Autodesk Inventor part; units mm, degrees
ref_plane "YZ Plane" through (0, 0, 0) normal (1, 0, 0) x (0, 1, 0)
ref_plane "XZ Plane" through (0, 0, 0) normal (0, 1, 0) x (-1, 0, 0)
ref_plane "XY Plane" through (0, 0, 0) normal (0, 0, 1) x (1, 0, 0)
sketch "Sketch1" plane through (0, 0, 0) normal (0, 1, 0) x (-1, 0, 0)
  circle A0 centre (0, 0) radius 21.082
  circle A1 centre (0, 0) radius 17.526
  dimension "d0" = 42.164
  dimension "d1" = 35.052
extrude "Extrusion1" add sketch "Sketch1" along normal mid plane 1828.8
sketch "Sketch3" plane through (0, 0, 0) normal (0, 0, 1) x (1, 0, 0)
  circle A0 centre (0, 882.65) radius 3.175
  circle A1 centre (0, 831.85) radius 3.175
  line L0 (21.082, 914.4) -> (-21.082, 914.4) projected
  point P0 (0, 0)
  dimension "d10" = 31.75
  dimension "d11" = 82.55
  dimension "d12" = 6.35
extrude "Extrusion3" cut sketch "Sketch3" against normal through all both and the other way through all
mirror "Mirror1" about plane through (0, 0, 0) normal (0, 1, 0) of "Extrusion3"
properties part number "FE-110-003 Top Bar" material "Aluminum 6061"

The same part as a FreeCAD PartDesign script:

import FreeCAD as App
import Part
import Sketcher
from FreeCAD import Vector
Q = App.Units.Quantity

doc = App.newDocument("Part")
body = doc.addObject("PartDesign::Body", "Body")

sketch1 = body.newObject("Sketcher::SketchObject", "Sketch")
sketch1.AttachmentSupport = (doc.getObject("XZ_Plane"), [""])
sketch1.MapMode = "FlatFace"
sketch1.addGeometry(Part.Circle(Vector(0, 0, 0), Vector(0, 0, 1), 21), False)
sketch1.addGeometry(Part.Circle(Vector(0, 0, 0), Vector(0, 0, 1), 18), False)
sketch1.addConstraint(Sketcher.Constraint("Coincident", 0, 3, -1, 1))
sketch1.addConstraint(Sketcher.Constraint("Coincident", 1, 3, -1, 1))
sketch1.addConstraint(Sketcher.Constraint("Diameter", 0, Q("1.66 in")))
sketch1.addConstraint(Sketcher.Constraint("Diameter", 1, Q("1.38 in")))
pad1 = body.newObject("PartDesign::Pad", "Pad")
pad1.Profile = sketch1
pad1.Length = Q("72 in")
pad1.Midplane = True

sketch2 = body.newObject("Sketcher::SketchObject", "Sketch001")
sketch2.AttachmentSupport = (doc.getObject("XY_Plane"), [""])
sketch2.MapMode = "FlatFace"
sketch2.addGeometry(Part.Circle(Vector(0, 882.6, 0), Vector(0, 0, 1), 3.2), False)
sketch2.addGeometry(Part.Circle(Vector(0, 831.9, 0), Vector(0, 0, 1), 3.2), False)
sketch2.addConstraint(Sketcher.Constraint("Equal", 0, 1))
sketch2.addConstraint(Sketcher.Constraint("PointOnObject", 0, 3, -2))
sketch2.addConstraint(Sketcher.Constraint("PointOnObject", 1, 3, -2))
sketch2.addConstraint(Sketcher.Constraint("Diameter", 0, Q("0.25 in")))
sketch2.addConstraint(Sketcher.Constraint("DistanceY", 1, 3, 0, 3, Q("2 in")))
sketch2.addConstraint(Sketcher.Constraint("DistanceY", -1, 1, 0, 3, Q("34.75 in")))
pocket1 = body.newObject("PartDesign::Pocket", "Pocket")
pocket1.Profile = sketch2
pocket1.Type = "ThroughAll"
pocket1.Midplane = True
doc.recompute()

mirrored = body.newObject("PartDesign::Mirrored", "Mirrored")
mirrored.Originals = [pocket1]
mirrored.MirrorPlane = (doc.getObject("XZ_Plane"), [""])
body.Tip = mirrored

doc.recompute()
